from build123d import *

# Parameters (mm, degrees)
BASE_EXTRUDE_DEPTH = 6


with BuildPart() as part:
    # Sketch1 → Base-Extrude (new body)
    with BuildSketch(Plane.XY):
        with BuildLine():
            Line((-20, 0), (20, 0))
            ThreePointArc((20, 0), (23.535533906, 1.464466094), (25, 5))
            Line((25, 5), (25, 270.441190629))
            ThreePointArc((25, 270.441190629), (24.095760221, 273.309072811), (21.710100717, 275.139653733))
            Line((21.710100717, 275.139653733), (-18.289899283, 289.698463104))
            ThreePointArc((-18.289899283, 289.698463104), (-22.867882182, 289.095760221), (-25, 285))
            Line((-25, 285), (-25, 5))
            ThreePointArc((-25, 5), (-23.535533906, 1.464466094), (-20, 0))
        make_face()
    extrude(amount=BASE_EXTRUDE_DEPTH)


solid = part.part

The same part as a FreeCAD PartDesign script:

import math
import FreeCAD as App
import Part
import Sketcher

V = App.Vector
Q = App.Units.Quantity

doc = App.newDocument("Part")
body = doc.addObject("PartDesign::Body", "Body")

sketch1 = body.newObject("Sketcher::SketchObject", "Sketch")
sketch1.AttachmentSupport = (doc.getObject("XY_Plane"), [""])
sketch1.MapMode = "FlatFace"
sketch1.addGeometry(Part.LineSegment(V(-20, 0, 0), V(20, 0, 0)), False)
sketch1.addGeometry(Part.ArcOfCircle(Part.Circle(V(20, 5, 0), V(0, 0, 1), 5), math.radians(-90), math.radians(0)), False)
sketch1.addGeometry(Part.LineSegment(V(25, 5, 0), V(25, 270, 0)), False)
sketch1.addGeometry(Part.ArcOfCircle(Part.Circle(V(20, 270, 0), V(0, 0, 1), 5), math.radians(0), math.radians(70)), False)
sketch1.addGeometry(Part.LineSegment(V(22, 275, 0), V(-18, 290, 0)), False)
sketch1.addGeometry(Part.ArcOfCircle(Part.Circle(V(-20, 285, 0), V(0, 0, 1), 5), math.radians(70), math.radians(180)), False)
sketch1.addGeometry(Part.LineSegment(V(-25, 285, 0), V(-25, 5, 0)), False)
sketch1.addGeometry(Part.ArcOfCircle(Part.Circle(V(-20, 5, 0), V(0, 0, 1), 5), math.radians(180), math.radians(270)), False)
sketch1.addConstraint(Sketcher.Constraint("Tangent", 0, 2, 1, 1))
sketch1.addConstraint(Sketcher.Constraint("Tangent", 1, 2, 2, 1))
sketch1.addConstraint(Sketcher.Constraint("Tangent", 2, 2, 3, 1))
sketch1.addConstraint(Sketcher.Constraint("Tangent", 3, 2, 4, 1))
sketch1.addConstraint(Sketcher.Constraint("Tangent", 4, 2, 5, 1))
sketch1.addConstraint(Sketcher.Constraint("Tangent", 5, 2, 6, 1))
sketch1.addConstraint(Sketcher.Constraint("Tangent", 6, 2, 7, 1))
sketch1.addConstraint(Sketcher.Constraint("Tangent", 7, 2, 0, 1))
sketch1.addConstraint(Sketcher.Constraint("Horizontal", 0))
sketch1.addConstraint(Sketcher.Constraint("Vertical", 2))
sketch1.addConstraint(Sketcher.Constraint("Vertical", 6))
sketch1.addConstraint(Sketcher.Constraint("Equal", 1, 3))
sketch1.addConstraint(Sketcher.Constraint("Equal", 3, 5))
sketch1.addConstraint(Sketcher.Constraint("Equal", 5, 7))
sketch1.addConstraint(Sketcher.Constraint("Symmetric", 0, 2, 7, 2, -1, 1))
sketch1.addConstraint(Sketcher.Constraint("Radius", 1, 5.0))
sketch1.addConstraint(Sketcher.Constraint("DistanceX", 0, 1, 0, 2, 40.0))
sketch1.addConstraint(Sketcher.Constraint("DistanceY", 6, 2, 6, 1, 280.0))
sketch1.addConstraint(Sketcher.Constraint("Angle", 4, Q("160 deg")))
pad1 = body.newObject("PartDesign::Pad", "Pad")
pad1.Profile = sketch1
pad1.Length = 6

doc.recompute()
